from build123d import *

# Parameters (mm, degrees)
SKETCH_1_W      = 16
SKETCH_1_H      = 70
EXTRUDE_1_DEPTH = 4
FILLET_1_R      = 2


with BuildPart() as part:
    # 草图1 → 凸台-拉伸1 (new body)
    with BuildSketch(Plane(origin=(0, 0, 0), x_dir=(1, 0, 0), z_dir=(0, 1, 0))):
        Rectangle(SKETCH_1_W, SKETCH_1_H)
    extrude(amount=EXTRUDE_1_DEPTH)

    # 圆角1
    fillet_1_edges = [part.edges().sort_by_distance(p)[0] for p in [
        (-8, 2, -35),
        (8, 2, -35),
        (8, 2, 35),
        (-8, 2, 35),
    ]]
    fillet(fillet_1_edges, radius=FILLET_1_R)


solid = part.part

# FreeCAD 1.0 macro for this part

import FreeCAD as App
import Part
import Sketcher


def edges_at(feature, points):
    """Names of the edges that pass closest to the given points."""
    edges = feature.Shape.Edges
    near = lambda p: min(range(len(edges)), key=lambda i: edges[i].distToShape(Part.Vertex(*p))[0])
    return sorted({f"Edge{near(p) + 1}" for p in points})


def add_polygon(sketch, points):
    """Adds a closed chain of lines whose ends are joined by coincident constraints."""
    first, n = sketch.GeometryCount, len(points)
    for a, b in zip(points, points[1:] + points[:1]):
        sketch.addGeometry(Part.LineSegment(App.Vector(*a, 0), App.Vector(*b, 0)), False)
    for i in range(n):
        sketch.addConstraint(Sketcher.Constraint("Coincident", first + i, 2, first + (i + 1) % n, 1))

doc = App.newDocument("Part")
body = doc.addObject("PartDesign::Body", "Body")

sketch1 = body.newObject("Sketcher::SketchObject", "Sketch")
sketch1.AttachmentSupport = (doc.getObject("XZ_Plane"), [""])
sketch1.MapMode = "FlatFace"
add_polygon(sketch1, [(-8, -35), (-8, 35), (8, 35), (8, -35)])
sketch1.addConstraint(Sketcher.Constraint("Vertical", 0))
sketch1.addConstraint(Sketcher.Constraint("Horizontal", 1))
sketch1.addConstraint(Sketcher.Constraint("Vertical", 2))
sketch1.addConstraint(Sketcher.Constraint("Horizontal", 3))
sketch1.addConstraint(Sketcher.Constraint("Symmetric", 0, 2, 2, 2, -1, 1))
sketch1.addConstraint(Sketcher.Constraint("DistanceX", 1, 1, 1, 2, 16.0))
sketch1.addConstraint(Sketcher.Constraint("DistanceY", 0, 1, 0, 2, 70.0))
pad1 = body.newObject("PartDesign::Pad", "Pad")
pad1.Profile = sketch1
pad1.Length = 4
pad1.Reversed = True
doc.recompute()

fillet = body.newObject("PartDesign::Fillet", "Fillet")
fillet.Base = (pad1, edges_at(pad1, [
    (-8, 2, -35),
    (8, 2, -35),
    (8, 2, 35),
    (-8, 2, 35),
]))
fillet.Radius = 2

doc.recompute()
